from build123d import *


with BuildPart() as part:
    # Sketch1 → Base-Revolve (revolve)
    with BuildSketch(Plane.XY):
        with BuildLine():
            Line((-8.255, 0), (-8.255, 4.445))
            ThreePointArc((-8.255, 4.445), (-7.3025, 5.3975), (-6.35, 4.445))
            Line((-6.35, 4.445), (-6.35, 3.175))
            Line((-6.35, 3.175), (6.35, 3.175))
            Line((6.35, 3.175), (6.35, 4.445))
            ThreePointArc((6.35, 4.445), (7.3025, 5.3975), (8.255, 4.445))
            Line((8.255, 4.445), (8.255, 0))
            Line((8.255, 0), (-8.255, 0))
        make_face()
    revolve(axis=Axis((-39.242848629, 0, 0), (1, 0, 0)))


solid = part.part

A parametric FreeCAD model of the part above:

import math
import FreeCAD as App
import Part
import Sketcher

V = App.Vector
Q = App.Units.Quantity

doc = App.newDocument("Part")
body = doc.addObject("PartDesign::Body", "Body")

sketch1 = body.newObject("Sketcher::SketchObject", "Sketch")
sketch1.AttachmentSupport = (doc.getObject("XY_Plane"), [""])
sketch1.MapMode = "FlatFace"
sketch1.addGeometry(Part.LineSegment(V(-8.3, 4.4, 0), V(-8.3, 0, 0)), False)
sketch1.addGeometry(Part.LineSegment(V(-8.3, 0, 0), V(8.3, 0, 0)), False)
sketch1.addGeometry(Part.LineSegment(V(8.3, 0, 0), V(8.3, 4.4, 0)), False)
sketch1.addGeometry(Part.ArcOfCircle(Part.Circle(V(7.3, 4.4, 0), V(0, 0, 1), 1), math.radians(0), math.radians(180)), False)
sketch1.addGeometry(Part.LineSegment(V(6.3, 4.4, 0), V(6.3, 3.2, 0)), False)
sketch1.addGeometry(Part.LineSegment(V(6.3, 3.2, 0), V(-6.3, 3.2, 0)), False)
sketch1.addGeometry(Part.LineSegment(V(-6.3, 3.2, 0), V(-6.3, 4.4, 0)), False)
sketch1.addGeometry(Part.ArcOfCircle(Part.Circle(V(-7.3, 4.4, 0), V(0, 0, 1), 1), math.radians(0), math.radians(180)), False)
sketch1.addConstraint(Sketcher.Constraint("Coincident", 0, 2, 1, 1))
sketch1.addConstraint(Sketcher.Constraint("Coincident", 1, 2, 2, 1))
sketch1.addConstraint(Sketcher.Constraint("Tangent", 2, 2, 3, 1))
sketch1.addConstraint(Sketcher.Constraint("Tangent", 3, 2, 4, 1))
sketch1.addConstraint(Sketcher.Constraint("Coincident", 4, 2, 5, 1))
sketch1.addConstraint(Sketcher.Constraint("Coincident", 5, 2, 6, 1))
sketch1.addConstraint(Sketcher.Constraint("Tangent", 6, 2, 7, 1))
sketch1.addConstraint(Sketcher.Constraint("Tangent", 7, 2, 0, 1))
sketch1.addConstraint(Sketcher.Constraint("Vertical", 0))
sketch1.addConstraint(Sketcher.Constraint("Horizontal", 1))
sketch1.addConstraint(Sketcher.Constraint("Vertical", 2))
sketch1.addConstraint(Sketcher.Constraint("Vertical", 4))
sketch1.addConstraint(Sketcher.Constraint("Horizontal", 5))
sketch1.addConstraint(Sketcher.Constraint("Vertical", 6))
sketch1.addConstraint(Sketcher.Constraint("Equal", 3, 7))
sketch1.addConstraint(Sketcher.Constraint("Symmetric", 0, 2, 1, 2, -1, 1))
sketch1.addConstraint(Sketcher.Constraint("Horizontal", 3, 3, 7, 3))
sketch1.addConstraint(Sketcher.Constraint("DistanceX", 5, 2, 5, 1, Q("0.5 in")))
sketch1.addConstraint(Sketcher.Constraint("DistanceX", 1, 1, 1, 2, Q("0.65 in")))
sketch1.addConstraint(Sketcher.Constraint("DistanceY", 4, 2, 4, 1, Q("0.05 in")))
sketch1.addConstraint(Sketcher.Constraint("DistanceY", 0, 2, 0, 1, Q("0.175 in")))
revolution = body.newObject("PartDesign::Revolution", "Revolution")
revolution.Profile = sketch1
revolution.ReferenceAxis = (sketch1, ["H_Axis"])
revolution.Angle = 360

doc.recompute()
